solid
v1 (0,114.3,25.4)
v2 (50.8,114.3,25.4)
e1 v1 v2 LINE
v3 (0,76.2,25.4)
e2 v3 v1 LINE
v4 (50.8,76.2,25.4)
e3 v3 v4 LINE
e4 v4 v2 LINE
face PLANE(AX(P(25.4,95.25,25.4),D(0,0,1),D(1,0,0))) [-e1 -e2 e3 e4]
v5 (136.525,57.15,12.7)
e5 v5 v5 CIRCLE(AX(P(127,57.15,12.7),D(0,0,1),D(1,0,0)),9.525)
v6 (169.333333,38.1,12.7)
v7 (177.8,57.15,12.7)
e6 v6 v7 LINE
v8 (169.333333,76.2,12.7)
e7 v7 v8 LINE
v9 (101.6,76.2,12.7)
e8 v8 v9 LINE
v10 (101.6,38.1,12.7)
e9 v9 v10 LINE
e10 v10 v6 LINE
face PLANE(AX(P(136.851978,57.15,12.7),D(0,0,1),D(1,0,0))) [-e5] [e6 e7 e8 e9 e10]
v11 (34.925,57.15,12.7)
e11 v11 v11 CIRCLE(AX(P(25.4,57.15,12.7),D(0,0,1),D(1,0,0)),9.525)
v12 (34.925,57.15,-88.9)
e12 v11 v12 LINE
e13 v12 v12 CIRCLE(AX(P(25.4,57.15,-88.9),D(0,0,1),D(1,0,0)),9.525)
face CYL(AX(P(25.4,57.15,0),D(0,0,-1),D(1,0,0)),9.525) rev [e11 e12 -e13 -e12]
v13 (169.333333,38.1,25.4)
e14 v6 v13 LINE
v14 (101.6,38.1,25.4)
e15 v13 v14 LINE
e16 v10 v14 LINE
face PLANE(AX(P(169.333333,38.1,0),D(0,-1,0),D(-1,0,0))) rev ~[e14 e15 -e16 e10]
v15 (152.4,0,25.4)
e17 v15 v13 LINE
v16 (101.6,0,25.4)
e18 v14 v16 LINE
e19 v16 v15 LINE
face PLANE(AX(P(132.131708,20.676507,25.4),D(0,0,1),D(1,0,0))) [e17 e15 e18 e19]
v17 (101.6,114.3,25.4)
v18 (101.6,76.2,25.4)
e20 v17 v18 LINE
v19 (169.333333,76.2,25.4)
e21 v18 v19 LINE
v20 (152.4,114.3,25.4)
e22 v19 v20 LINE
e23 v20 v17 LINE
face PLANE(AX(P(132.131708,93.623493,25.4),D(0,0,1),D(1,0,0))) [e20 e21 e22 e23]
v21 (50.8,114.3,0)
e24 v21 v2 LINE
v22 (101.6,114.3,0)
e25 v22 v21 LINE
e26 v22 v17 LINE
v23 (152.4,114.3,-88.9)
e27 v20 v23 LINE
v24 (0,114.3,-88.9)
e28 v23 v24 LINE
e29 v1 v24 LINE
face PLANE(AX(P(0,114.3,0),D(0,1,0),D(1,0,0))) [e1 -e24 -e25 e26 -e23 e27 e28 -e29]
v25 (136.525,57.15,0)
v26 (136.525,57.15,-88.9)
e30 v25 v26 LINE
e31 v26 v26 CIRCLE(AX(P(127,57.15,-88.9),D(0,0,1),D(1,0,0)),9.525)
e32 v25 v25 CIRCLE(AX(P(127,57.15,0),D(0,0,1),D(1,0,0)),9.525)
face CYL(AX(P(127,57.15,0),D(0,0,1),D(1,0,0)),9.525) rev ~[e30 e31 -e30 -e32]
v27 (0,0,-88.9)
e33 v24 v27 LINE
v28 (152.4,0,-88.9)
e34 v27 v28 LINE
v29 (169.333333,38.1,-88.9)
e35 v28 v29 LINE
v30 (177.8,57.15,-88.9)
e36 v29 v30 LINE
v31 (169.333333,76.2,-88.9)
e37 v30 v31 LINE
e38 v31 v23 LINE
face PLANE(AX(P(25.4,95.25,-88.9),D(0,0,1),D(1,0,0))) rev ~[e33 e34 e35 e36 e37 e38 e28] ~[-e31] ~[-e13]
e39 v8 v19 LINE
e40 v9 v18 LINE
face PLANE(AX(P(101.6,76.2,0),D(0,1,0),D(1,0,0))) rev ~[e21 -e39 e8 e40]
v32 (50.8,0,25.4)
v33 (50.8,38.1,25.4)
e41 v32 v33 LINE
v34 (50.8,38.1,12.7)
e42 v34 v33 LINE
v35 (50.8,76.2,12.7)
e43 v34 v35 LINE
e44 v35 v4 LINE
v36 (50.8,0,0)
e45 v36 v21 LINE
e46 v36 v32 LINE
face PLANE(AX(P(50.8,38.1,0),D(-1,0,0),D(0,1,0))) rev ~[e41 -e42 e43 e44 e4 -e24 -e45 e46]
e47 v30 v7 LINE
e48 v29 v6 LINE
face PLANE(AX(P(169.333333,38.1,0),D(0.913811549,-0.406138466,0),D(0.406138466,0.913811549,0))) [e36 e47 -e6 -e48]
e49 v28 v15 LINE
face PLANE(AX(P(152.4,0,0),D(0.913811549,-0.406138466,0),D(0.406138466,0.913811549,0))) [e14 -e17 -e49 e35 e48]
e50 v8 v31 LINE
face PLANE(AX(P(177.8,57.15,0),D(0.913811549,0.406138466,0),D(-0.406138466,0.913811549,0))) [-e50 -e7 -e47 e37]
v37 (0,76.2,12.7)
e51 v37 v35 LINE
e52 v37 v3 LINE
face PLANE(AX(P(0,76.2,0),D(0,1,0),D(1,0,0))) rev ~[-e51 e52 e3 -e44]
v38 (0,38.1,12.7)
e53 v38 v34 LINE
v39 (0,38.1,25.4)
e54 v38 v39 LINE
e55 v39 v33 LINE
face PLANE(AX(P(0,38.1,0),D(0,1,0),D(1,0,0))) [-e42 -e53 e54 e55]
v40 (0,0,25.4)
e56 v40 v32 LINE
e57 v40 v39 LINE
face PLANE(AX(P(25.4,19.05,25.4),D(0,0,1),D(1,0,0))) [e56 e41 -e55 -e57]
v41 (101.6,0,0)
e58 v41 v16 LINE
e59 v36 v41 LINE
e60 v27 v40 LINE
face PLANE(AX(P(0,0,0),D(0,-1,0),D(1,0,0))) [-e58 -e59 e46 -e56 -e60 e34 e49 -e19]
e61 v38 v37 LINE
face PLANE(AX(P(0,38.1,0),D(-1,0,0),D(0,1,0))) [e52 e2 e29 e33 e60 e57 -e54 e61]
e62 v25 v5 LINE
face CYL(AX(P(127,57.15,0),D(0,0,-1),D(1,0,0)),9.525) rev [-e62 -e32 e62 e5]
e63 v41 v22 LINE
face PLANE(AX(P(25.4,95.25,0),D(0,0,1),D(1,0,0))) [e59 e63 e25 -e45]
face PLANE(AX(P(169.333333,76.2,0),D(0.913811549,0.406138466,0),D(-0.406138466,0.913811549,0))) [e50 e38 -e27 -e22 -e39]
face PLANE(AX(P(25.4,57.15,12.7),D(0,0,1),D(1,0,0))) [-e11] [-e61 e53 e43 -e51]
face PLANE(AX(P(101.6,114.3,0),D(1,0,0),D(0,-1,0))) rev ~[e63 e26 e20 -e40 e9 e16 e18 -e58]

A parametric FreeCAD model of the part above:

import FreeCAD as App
import Part
import Sketcher
Q = App.Units.Quantity


def add_polygon(sketch, points):
    """Adds a closed chain of lines whose ends are joined by coincident constraints."""
    first, n = sketch.GeometryCount, len(points)
    for a, b in zip(points, points[1:] + points[:1]):
        sketch.addGeometry(Part.LineSegment(App.Vector(*a, 0), App.Vector(*b, 0)), False)
    for i in range(n):
        sketch.addConstraint(Sketcher.Constraint("Coincident", first + i, 2, first + (i + 1) % n, 1))

doc = App.newDocument("Part")
body = doc.addObject("PartDesign::Body", "Body")

# Sketch on XY plane
sketch1 = body.newObject("Sketcher::SketchObject", "Sketch")
sketch1.AttachmentSupport = (doc.getObject("XY_Plane"), [""])
sketch1.MapMode = "FlatFace"
add_polygon(sketch1, [(0, 114.3), (0, 0), (152.4, 0), (169.333333, 38.1), (177.8, 57.15), (169.333333, 76.2), (152.4, 114.3)])  # lines 0-6
sketch1.addGeometry(Part.Circle(App.Vector(25.4, 57.15, 0), App.Vector(0, 0, 1), 9.525), False)  # 7
sketch1.addGeometry(Part.Circle(App.Vector(127, 57.15, 0), App.Vector(0, 0, 1), 9.525), False)  # 8
sketch1.addConstraint([
    Sketcher.Constraint("Vertical", 0),
    Sketcher.Constraint("Horizontal", 1),
    Sketcher.Constraint("Horizontal", 6),
    Sketcher.Constraint("Coincident", 0, 2, -1, 1),
    Sketcher.Constraint("Equal", 7, 8),
    Sketcher.Constraint("Parallel", 2, 3),
    Sketcher.Constraint("Parallel", 4, 5),
    Sketcher.Constraint("Horizontal", 7, 3, 8, 3),
    Sketcher.Constraint("Horizontal", 8, 3, 3, 2),
    Sketcher.Constraint("Vertical", 2, 2, 4, 2),
    Sketcher.Constraint("Vertical", 1, 2, 5, 2),
    Sketcher.Constraint("Equal", 3, 4),
    Sketcher.Constraint("Diameter", 7, Q("0.75 in")),
    Sketcher.Constraint("DistanceX", 1, 1, 1, 2, Q("6 in")),
    Sketcher.Constraint("DistanceY", 0, 2, 0, 1, Q("4.5 in")),
    Sketcher.Constraint("DistanceX", -1, 1, 7, 3, Q("1 in")),
    Sketcher.Constraint("DistanceX", -1, 1, 8, 3, Q("5 in")),
    Sketcher.Constraint("DistanceX", -1, 1, 3, 2, Q("7 in")),
    Sketcher.Constraint("DistanceY", -1, 1, 4, 2, Q("3 in")),
])
pad1 = body.newObject("PartDesign::Pad", "Pad")
pad1.Profile = sketch1
pad1.Length = Q("3.5 in")
pad1.Reversed = True

# Sketch on XY plane
sketch2 = body.newObject("Sketcher::SketchObject", "Sketch001")
sketch2.AttachmentSupport = (doc.getObject("XY_Plane"), [""])
sketch2.MapMode = "FlatFace"
add_polygon(sketch2, [(0, 114.3), (0, 76.2), (50.8, 76.2), (50.8, 114.3)])  # lines 0-3
add_polygon(sketch2, [(0, 38.1), (0, 0), (50.8, 0), (50.8, 38.1)])  # lines 4-7
add_polygon(sketch2, [(152.4, 114.3), (101.6, 114.3), (101.6, 76.2), (169.333333, 76.2)])  # lines 8-11
add_polygon(sketch2, [(169.333333, 38.1), (101.6, 38.1), (101.6, 0), (152.4, 0)])  # lines 12-15
sketch2.addConstraint([
    Sketcher.Constraint("Vertical", 0),
    Sketcher.Constraint("Horizontal", 1),
    Sketcher.Constraint("Vertical", 2),
    Sketcher.Constraint("Horizontal", 3),
    Sketcher.Constraint("Vertical", 4),
    Sketcher.Constraint("Horizontal", 5),
    Sketcher.Constraint("Vertical", 6),
    Sketcher.Constraint("Horizontal", 7),
    Sketcher.Constraint("Horizontal", 8),
    Sketcher.Constraint("Vertical", 9),
    Sketcher.Constraint("Horizontal", 10),
    Sketcher.Constraint("Horizontal", 12),
    Sketcher.Constraint("Vertical", 13),
    Sketcher.Constraint("Horizontal", 14),
    Sketcher.Constraint("Coincident", 4, 2, -1, 1),
    Sketcher.Constraint("PointOnObject", 0, 2, -2),
    Sketcher.Constraint("PointOnObject", 13, 2, -1),
    Sketcher.Constraint("Horizontal", 3, 2, 8, 2),
    Sketcher.Constraint("Horizontal", 1, 2, 9, 2),
    Sketcher.Constraint("Horizontal", 7, 2, 12, 2),
    Sketcher.Constraint("Vertical", 2, 2, 5, 2),
    Sketcher.Constraint("Vertical", 9, 2, 12, 2),
    Sketcher.Constraint("Vertical", 11, 2, 14, 2),
    Sketcher.Constraint("Vertical", 10, 2, 15, 2),
    Sketcher.Constraint("Equal", 7, 8),
    Sketcher.Constraint("Equal", 2, 4),
    Sketcher.Constraint("DistanceX", 1, 1, 1, 2, Q("2 in")),
    Sketcher.Constraint("DistanceY", 0, 2, 0, 1, Q("1.5 in")),
    Sketcher.Constraint("DistanceY", -1, 1, 0, 2, Q("3 in")),
    Sketcher.Constraint("DistanceX", -1, 1, 8, 2, Q("4 in")),
    Sketcher.Constraint("Distance", 11, Q("41.693498 mm")),
])
pad2 = body.newObject("PartDesign::Pad", "Pad001")
pad2.Profile = sketch2
pad2.Length = Q("1 in")

# Sketch on XY plane
sketch3 = body.newObject("Sketcher::SketchObject", "Sketch002")
sketch3.AttachmentSupport = (doc.getObject("XY_Plane"), [""])
sketch3.MapMode = "FlatFace"
add_polygon(sketch3, [(0, 76.2), (0, 38.1), (50.8, 38.1), (50.8, 76.2)])  # lines 0-3
sketch3.addGeometry(Part.Circle(App.Vector(25.4, 57.15, 0), App.Vector(0, 0, 1), 9.525), False)  # 4
add_polygon(sketch3, [(169.333333, 76.2), (101.6, 76.2), (101.6, 38.1), (169.333333, 38.1), (177.8, 57.15)])  # lines 5-9
sketch3.addGeometry(Part.Circle(App.Vector(127, 57.15, 0), App.Vector(0, 0, 1), 9.525), False)  # 10
sketch3.addConstraint([
    Sketcher.Constraint("Vertical", 0),
    Sketcher.Constraint("Horizontal", 1),
    Sketcher.Constraint("Vertical", 2),
    Sketcher.Constraint("Horizontal", 3),
    Sketcher.Constraint("Horizontal", 5),
    Sketcher.Constraint("Vertical", 6),
    Sketcher.Constraint("Horizontal", 7),
    Sketcher.Constraint("Equal", 4, 10),
    Sketcher.Constraint("PointOnObject", 0, 2, -2),
    Sketcher.Constraint("Horizontal", 4, 3, 10, 3),
    Sketcher.Constraint("Horizontal", 3, 2, 5, 2),
    Sketcher.Constraint("Horizontal", 1, 2, 6, 2),
    Sketcher.Constraint("Horizontal", 10, 3, 8, 2),
    Sketcher.Constraint("Vertical", 7, 2, 9, 2),
    Sketcher.Constraint("Equal", 8, 9),
    Sketcher.Constraint("Diameter", 4, Q("0.75 in")),
    Sketcher.Constraint("DistanceX", 1, 1, 1, 2, Q("2 in")),
    Sketcher.Constraint("DistanceY", 0, 2, 0, 1, Q("1.5 in")),
    Sketcher.Constraint("DistanceX", -1, 1, 4, 3, Q("1 in")),
    Sketcher.Constraint("DistanceX", -1, 1, 10, 3, Q("5 in")),
    Sketcher.Constraint("DistanceY", -1, 1, 2, 2, Q("3 in")),
    Sketcher.Constraint("DistanceX", -1, 1, 5, 2, Q("4 in")),
    Sketcher.Constraint("DistanceX", -1, 1, 8, 2, Q("7 in")),
    Sketcher.Constraint("Distance", 8, Q("20.846749 mm")),
])
pad3 = body.newObject("PartDesign::Pad", "Pad002")
pad3.Profile = sketch3
pad3.Length = Q("0.5 in")

doc.recompute()
